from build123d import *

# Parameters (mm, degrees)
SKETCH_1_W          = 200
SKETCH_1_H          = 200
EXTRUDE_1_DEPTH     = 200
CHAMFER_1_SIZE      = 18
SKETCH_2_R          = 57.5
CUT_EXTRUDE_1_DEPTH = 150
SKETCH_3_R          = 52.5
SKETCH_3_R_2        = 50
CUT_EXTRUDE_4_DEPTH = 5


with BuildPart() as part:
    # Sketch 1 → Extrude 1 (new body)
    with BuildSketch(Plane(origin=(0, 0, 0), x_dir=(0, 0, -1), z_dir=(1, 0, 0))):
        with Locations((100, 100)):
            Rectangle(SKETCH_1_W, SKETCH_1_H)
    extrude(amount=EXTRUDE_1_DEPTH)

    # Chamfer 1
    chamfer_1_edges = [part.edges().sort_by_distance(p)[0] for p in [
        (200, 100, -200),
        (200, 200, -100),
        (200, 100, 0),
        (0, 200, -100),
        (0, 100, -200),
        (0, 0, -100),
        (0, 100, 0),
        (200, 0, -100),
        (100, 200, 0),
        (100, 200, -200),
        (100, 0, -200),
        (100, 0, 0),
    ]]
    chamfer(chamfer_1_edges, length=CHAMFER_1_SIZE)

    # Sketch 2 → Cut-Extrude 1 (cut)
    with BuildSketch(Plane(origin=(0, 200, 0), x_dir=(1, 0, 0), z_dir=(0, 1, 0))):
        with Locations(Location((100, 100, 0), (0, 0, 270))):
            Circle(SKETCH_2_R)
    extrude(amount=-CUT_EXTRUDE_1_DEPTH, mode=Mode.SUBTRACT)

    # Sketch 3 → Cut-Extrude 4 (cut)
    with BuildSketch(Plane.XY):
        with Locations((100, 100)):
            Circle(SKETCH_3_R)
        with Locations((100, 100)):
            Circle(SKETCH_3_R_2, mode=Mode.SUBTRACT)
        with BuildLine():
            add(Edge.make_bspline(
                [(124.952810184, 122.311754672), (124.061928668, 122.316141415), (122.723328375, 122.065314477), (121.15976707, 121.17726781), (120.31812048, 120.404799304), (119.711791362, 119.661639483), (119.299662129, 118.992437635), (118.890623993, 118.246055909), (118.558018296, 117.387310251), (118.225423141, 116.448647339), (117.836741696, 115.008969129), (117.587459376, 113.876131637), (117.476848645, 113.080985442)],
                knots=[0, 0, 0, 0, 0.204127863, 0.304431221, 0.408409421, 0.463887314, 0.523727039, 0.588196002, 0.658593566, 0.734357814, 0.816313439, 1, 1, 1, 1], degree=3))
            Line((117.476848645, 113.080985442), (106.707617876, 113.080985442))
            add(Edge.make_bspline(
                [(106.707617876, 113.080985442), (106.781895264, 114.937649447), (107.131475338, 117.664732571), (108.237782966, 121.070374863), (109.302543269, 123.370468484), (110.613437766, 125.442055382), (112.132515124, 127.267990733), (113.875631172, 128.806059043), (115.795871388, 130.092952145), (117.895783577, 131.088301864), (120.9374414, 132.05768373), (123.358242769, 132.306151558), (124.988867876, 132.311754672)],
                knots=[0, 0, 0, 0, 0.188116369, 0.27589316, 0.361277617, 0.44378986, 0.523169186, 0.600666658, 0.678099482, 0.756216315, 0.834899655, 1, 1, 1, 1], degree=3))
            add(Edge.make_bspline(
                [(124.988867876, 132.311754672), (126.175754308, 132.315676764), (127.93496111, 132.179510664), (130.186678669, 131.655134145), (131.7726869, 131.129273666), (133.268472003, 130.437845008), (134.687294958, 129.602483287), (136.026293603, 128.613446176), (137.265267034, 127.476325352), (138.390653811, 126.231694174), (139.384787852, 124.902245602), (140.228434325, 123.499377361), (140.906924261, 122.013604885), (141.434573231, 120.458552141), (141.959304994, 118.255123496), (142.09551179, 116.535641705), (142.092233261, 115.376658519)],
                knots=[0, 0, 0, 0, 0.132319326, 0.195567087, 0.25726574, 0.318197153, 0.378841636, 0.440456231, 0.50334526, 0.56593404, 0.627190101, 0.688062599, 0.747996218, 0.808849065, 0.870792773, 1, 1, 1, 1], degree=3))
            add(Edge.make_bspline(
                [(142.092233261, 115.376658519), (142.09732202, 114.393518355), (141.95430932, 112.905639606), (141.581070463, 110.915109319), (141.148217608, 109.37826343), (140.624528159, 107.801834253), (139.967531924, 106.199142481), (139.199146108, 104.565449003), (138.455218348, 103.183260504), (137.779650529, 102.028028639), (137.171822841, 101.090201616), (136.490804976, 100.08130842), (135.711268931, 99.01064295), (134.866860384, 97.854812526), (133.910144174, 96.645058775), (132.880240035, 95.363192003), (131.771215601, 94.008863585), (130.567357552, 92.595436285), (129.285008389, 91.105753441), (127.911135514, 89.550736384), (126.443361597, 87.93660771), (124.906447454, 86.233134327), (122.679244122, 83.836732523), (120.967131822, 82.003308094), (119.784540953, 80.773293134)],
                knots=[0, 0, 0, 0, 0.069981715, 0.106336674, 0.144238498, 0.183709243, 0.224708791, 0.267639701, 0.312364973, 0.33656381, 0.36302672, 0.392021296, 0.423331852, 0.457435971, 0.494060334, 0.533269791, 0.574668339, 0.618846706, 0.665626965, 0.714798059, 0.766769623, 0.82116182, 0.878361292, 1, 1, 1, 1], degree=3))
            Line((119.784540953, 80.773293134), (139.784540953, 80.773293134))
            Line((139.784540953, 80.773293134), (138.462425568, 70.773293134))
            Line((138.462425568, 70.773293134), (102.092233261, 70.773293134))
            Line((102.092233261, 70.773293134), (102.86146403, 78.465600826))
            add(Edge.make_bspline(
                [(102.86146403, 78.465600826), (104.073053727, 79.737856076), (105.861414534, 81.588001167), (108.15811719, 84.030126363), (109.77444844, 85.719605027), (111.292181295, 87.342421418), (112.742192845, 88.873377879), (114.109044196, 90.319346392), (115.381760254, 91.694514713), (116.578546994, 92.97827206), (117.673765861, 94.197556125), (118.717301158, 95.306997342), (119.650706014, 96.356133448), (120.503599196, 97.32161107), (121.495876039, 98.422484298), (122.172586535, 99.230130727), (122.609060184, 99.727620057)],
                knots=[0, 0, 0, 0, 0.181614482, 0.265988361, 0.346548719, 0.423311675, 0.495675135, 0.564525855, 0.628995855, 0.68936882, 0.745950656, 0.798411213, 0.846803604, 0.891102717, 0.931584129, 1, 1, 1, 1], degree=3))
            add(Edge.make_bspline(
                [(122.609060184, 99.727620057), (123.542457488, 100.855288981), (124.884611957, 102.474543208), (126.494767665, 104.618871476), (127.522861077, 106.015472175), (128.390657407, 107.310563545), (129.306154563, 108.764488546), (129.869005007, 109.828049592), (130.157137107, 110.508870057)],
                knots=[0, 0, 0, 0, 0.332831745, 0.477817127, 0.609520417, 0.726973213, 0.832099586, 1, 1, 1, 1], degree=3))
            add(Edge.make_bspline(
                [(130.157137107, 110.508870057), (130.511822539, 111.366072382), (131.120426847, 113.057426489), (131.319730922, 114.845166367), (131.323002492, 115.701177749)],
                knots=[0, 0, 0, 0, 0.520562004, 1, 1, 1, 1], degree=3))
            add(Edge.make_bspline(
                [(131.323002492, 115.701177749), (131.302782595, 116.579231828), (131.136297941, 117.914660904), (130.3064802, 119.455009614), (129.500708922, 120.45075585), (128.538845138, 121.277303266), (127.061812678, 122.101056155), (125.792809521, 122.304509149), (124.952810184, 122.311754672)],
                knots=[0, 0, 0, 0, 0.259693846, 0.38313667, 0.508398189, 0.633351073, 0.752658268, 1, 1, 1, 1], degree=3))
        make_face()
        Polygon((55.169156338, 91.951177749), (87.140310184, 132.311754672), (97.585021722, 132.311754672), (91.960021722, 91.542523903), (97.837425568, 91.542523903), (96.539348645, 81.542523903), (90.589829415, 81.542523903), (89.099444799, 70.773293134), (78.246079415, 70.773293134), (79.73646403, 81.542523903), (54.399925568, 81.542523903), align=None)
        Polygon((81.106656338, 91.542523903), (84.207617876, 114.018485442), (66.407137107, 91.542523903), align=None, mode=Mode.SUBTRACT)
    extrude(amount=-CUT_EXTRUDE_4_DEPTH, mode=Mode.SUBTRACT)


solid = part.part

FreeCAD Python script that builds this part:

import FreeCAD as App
import Part
import Sketcher

V = App.Vector
Q = App.Units.Quantity

doc = App.newDocument("Part")
body = doc.addObject("PartDesign::Body", "Body")

sketch1 = body.newObject("Sketcher::SketchObject", "Sketch")
sketch1.AttachmentSupport = (doc.getObject("YZ_Plane"), [""])
sketch1.MapMode = "FlatFace"
sketch1.addGeometry(Part.LineSegment(V(200, 0, 0), V(0, 0, 0)), False)
sketch1.addGeometry(Part.LineSegment(V(0, 0, 0), V(0, -200, 0)), False)
sketch1.addGeometry(Part.LineSegment(V(0, -200, 0), V(200, -200, 0)), False)
sketch1.addGeometry(Part.LineSegment(V(200, -200, 0), V(200, 0, 0)), False)
sketch1.addConstraint(Sketcher.Constraint("Coincident", 0, 2, 1, 1))
sketch1.addConstraint(Sketcher.Constraint("Coincident", 1, 2, 2, 1))
sketch1.addConstraint(Sketcher.Constraint("Coincident", 2, 2, 3, 1))
sketch1.addConstraint(Sketcher.Constraint("Coincident", 3, 2, 0, 1))
sketch1.addConstraint(Sketcher.Constraint("Horizontal", 0))
sketch1.addConstraint(Sketcher.Constraint("Vertical", 1))
sketch1.addConstraint(Sketcher.Constraint("Horizontal", 2))
sketch1.addConstraint(Sketcher.Constraint("Vertical", 3))
sketch1.addConstraint(Sketcher.Constraint("Coincident", 0, 2, -1, 1))
sketch1.addConstraint(Sketcher.Constraint("Equal", 2, 1))
sketch1.addConstraint(Sketcher.Constraint("DistanceX", 0, 2, 0, 1, Q("200 mm")))
pad1 = body.newObject("PartDesign::Pad", "Pad")
pad1.Profile = sketch1
pad1.Length = 200
doc.recompute()

chamfer = body.newObject("PartDesign::Chamfer", "Chamfer")
chamfer.Base = (pad1, ["Edge1"])
chamfer.UseAllEdges = True
chamfer.Size = 18

sketch2 = body.newObject("Sketcher::SketchObject", "Sketch001")
sketch2.AttachmentSupport = (doc.getObject("XZ_Plane"), [""])
sketch2.MapMode = "FlatFace"
sketch2.AttachmentOffset = App.Placement(V(0, 0, -200), App.Rotation())
sketch2.addGeometry(Part.Circle(V(100, -100, 0), V(0, 0, 1), 58), False)
sketch2.addConstraint(Sketcher.Constraint("Diameter", 0, Q("115 mm")))
sketch2.addConstraint(Sketcher.Constraint("DistanceX", -1, 1, 0, 3, Q("100 mm")))
sketch2.addConstraint(Sketcher.Constraint("DistanceY", 0, 3, -1, 1, Q("100 mm")))
pocket1 = body.newObject("PartDesign::Pocket", "Pocket")
pocket1.Profile = sketch2
pocket1.Length = 150
pocket1.Reversed = True

sketch3 = body.newObject("Sketcher::SketchObject", "Sketch002")
sketch3.AttachmentSupport = (doc.getObject("XY_Plane"), [""])
sketch3.MapMode = "FlatFace"
sketch3.addGeometry(Part.Circle(V(100, 100, 0), V(0, 0, 1), 52.5), False)
sketch3.addGeometry(Part.Circle(V(100, 100, 0), V(0, 0, 1), 50), False)
sketch3.addGeometry(Part.BSplineCurve([V(124.95281, 122.311755, 0), V(124.061929, 122.316141, 0), V(122.723328, 122.065314, 0), V(121.159767, 121.177268, 0), V(120.31812, 120.404799, 0), V(119.711791, 119.661639, 0), V(119.299662, 118.992438, 0), V(118.890624, 118.246056, 0), V(118.558018, 117.38731, 0), V(118.225423, 116.448647, 0), V(117.836742, 115.008969, 0), V(117.587459, 113.876132, 0), V(117.476849, 113.080985, 0)], [4, 1, 1, 1, 1, 1, 1, 1, 1, 1, 4], [0, 0.204127863, 0.304431221, 0.408409421, 0.463887314, 0.523727039, 0.588196002, 0.658593566, 0.734357814, 0.816313439, 1], False, 3, [1, 1, 1, 1, 1, 1, 1, 1, 1, 1, 1, 1, 1], False), False)
sketch3.addGeometry(Part.BSplineCurve([V(131.323002, 115.701178, 0), V(131.302783, 116.579232, 0), V(131.136298, 117.914661, 0), V(130.30648, 119.45501, 0), V(129.500709, 120.450756, 0), V(128.538845, 121.277303, 0), V(127.061813, 122.101056, 0), V(125.79281, 122.304509, 0), V(124.95281, 122.311755, 0)], [4, 1, 1, 1, 1, 1, 4], [0, 0.259693846, 0.38313667, 0.508398189, 0.633351073, 0.752658268, 1], False, 3, [1, 1, 1, 1, 1, 1, 1, 1, 1], False), False)
sketch3.addGeometry(Part.BSplineCurve([V(130.157137, 110.50887, 0), V(130.511823, 111.366072, 0), V(131.120427, 113.057426, 0), V(131.319731, 114.845166, 0), V(131.323002, 115.701178, 0)], [4, 1, 4], [0, 0.520562004, 1], False, 3, [1, 1, 1, 1, 1], False), False)
sketch3.addGeometry(Part.BSplineCurve([V(122.60906, 99.72762, 0), V(123.542457, 100.855289, 0), V(124.884612, 102.474543, 0), V(126.494768, 104.618871, 0), V(127.522861, 106.015472, 0), V(128.390657, 107.310564, 0), V(129.306155, 108.764489, 0), V(129.869005, 109.82805, 0), V(130.157137, 110.50887, 0)], [4, 1, 1, 1, 1, 1, 4], [0, 0.332831745, 0.477817127, 0.609520417, 0.726973213, 0.832099586, 1], False, 3, [1, 1, 1, 1, 1, 1, 1, 1, 1], False), False)
sketch3.addGeometry(Part.BSplineCurve([V(102.861464, 78.465601, 0), V(104.073054, 79.737856, 0), V(105.861415, 81.588001, 0), V(108.158117, 84.030126, 0), V(109.774448, 85.719605, 0), V(111.292181, 87.342421, 0), V(112.742193, 88.873378, 0), V(114.109044, 90.319346, 0), V(115.38176, 91.694515, 0), V(116.578547, 92.978272, 0), V(117.673766, 94.197556, 0), V(118.717301, 95.306997, 0), V(119.650706, 96.356133, 0), V(120.503599, 97.321611, 0), V(121.495876, 98.422484, 0), V(122.172587, 99.230131, 0), V(122.60906, 99.72762, 0)], [4, 1, 1, 1, 1, 1, 1, 1, 1, 1, 1, 1, 1, 1, 4], [0, 0.181614482, 0.265988361, 0.346548719, 0.423311675, 0.495675135, 0.564525855, 0.628995855, 0.68936882, 0.745950656, 0.798411213, 0.846803604, 0.891102717, 0.931584129, 1], False, 3, [1, 1, 1, 1, 1, 1, 1, 1, 1, 1, 1, 1, 1, 1, 1, 1, 1], False), False)
sketch3.addGeometry(Part.LineSegment(V(102.861464, 78.465601, 0), V(102.092233, 70.773293, 0)), False)
sketch3.addGeometry(Part.LineSegment(V(102.092233, 70.773293, 0), V(138.462426, 70.773293, 0)), False)
sketch3.addGeometry(Part.LineSegment(V(138.462426, 70.773293, 0), V(139.784541, 80.773293, 0)), False)
sketch3.addGeometry(Part.LineSegment(V(139.784541, 80.773293, 0), V(119.784541, 80.773293, 0)), False)
sketch3.addGeometry(Part.BSplineCurve([V(142.092233, 115.376659, 0), V(142.097322, 114.393518, 0), V(141.954309, 112.90564, 0), V(141.58107, 110.915109, 0), V(141.148218, 109.378263, 0), V(140.624528, 107.801834, 0), V(139.967532, 106.199142, 0), V(139.199146, 104.565449, 0), V(138.455218, 103.183261, 0), V(137.779651, 102.028029, 0), V(137.171823, 101.090202, 0), V(136.490805, 100.081308, 0), V(135.711269, 99.010643, 0), V(134.86686, 97.854813, 0), V(133.910144, 96.645059, 0), V(132.88024, 95.363192, 0), V(131.771216, 94.008864, 0), V(130.567358, 92.595436, 0), V(129.285008, 91.105753, 0), V(127.911136, 89.550736, 0), V(126.443362, 87.936608, 0), V(124.906447, 86.233134, 0), V(122.679244, 83.836733, 0), V(120.967132, 82.003308, 0), V(119.784541, 80.773293, 0)], [4, 1, 1, 1, 1, 1, 1, 1, 1, 1, 1, 1, 1, 1, 1, 1, 1, 1, 1, 1, 1, 1, 4], [0, 0.069981715, 0.106336674, 0.144238498, 0.183709243, 0.224708791, 0.267639701, 0.312364973, 0.33656381, 0.36302672, 0.392021296, 0.423331852, 0.457435971, 0.494060334, 0.533269791, 0.574668339, 0.618846706, 0.665626965, 0.714798059, 0.766769623, 0.82116182, 0.878361292, 1], False, 3, [1, 1, 1, 1, 1, 1, 1, 1, 1, 1, 1, 1, 1, 1, 1, 1, 1, 1, 1, 1, 1, 1, 1, 1, 1], False), False)
sketch3.addGeometry(Part.BSplineCurve([V(124.988868, 132.311755, 0), V(126.175754, 132.315677, 0), V(127.934961, 132.179511, 0), V(130.186679, 131.655134, 0), V(131.772687, 131.129274, 0), V(133.268472, 130.437845, 0), V(134.687295, 129.602483, 0), V(136.026294, 128.613446, 0), V(137.265267, 127.476325, 0), V(138.390654, 126.231694, 0), V(139.384788, 124.902246, 0), V(140.228434, 123.499377, 0), V(140.906924, 122.013605, 0), V(141.434573, 120.458552, 0), V(141.959305, 118.255123, 0), V(142.095512, 116.535642, 0), V(142.092233, 115.376659, 0)], [4, 1, 1, 1, 1, 1, 1, 1, 1, 1, 1, 1, 1, 1, 4], [0, 0.132319326, 0.195567087, 0.25726574, 0.318197153, 0.378841636, 0.440456231, 0.50334526, 0.56593404, 0.627190101, 0.688062599, 0.747996218, 0.808849065, 0.870792773, 1], False, 3, [1, 1, 1, 1, 1, 1, 1, 1, 1, 1, 1, 1, 1, 1, 1, 1, 1], False), False)
sketch3.addGeometry(Part.BSplineCurve([V(106.707618, 113.080985, 0), V(106.781895, 114.937649, 0), V(107.131475, 117.664733, 0), V(108.237783, 121.070375, 0), V(109.302543, 123.370468, 0), V(110.613438, 125.442055, 0), V(112.132515, 127.267991, 0), V(113.875631, 128.806059, 0), V(115.795871, 130.092952, 0), V(117.895784, 131.088302, 0), V(120.937441, 132.057684, 0), V(123.358243, 132.306152, 0), V(124.988868, 132.311755, 0)], [4, 1, 1, 1, 1, 1, 1, 1, 1, 1, 4], [0, 0.188116369, 0.27589316, 0.361277617, 0.44378986, 0.523169186, 0.600666658, 0.678099482, 0.756216315, 0.834899655, 1], False, 3, [1, 1, 1, 1, 1, 1, 1, 1, 1, 1, 1, 1, 1], False), False)
sketch3.addGeometry(Part.LineSegment(V(106.707618, 113.080985, 0), V(117.476849, 113.080985, 0)), False)
sketch3.addGeometry(Part.LineSegment(V(87.14031, 132.311755, 0), V(55.169156, 91.951178, 0)), False)
sketch3.addGeometry(Part.LineSegment(V(55.169156, 91.951178, 0), V(54.399926, 81.542524, 0)), False)
sketch3.addGeometry(Part.LineSegment(V(54.399926, 81.542524, 0), V(79.736464, 81.542524, 0)), False)
sketch3.addGeometry(Part.LineSegment(V(79.736464, 81.542524, 0), V(78.246079, 70.773293, 0)), False)
sketch3.addGeometry(Part.LineSegment(V(78.246079, 70.773293, 0), V(89.099445, 70.773293, 0)), False)
sketch3.addGeometry(Part.LineSegment(V(89.099445, 70.773293, 0), V(90.589829, 81.542524, 0)), False)
sketch3.addGeometry(Part.LineSegment(V(90.589829, 81.542524, 0), V(96.539349, 81.542524, 0)), False)
sketch3.addGeometry(Part.LineSegment(V(96.539349, 81.542524, 0), V(97.837426, 91.542524, 0)), False)
sketch3.addGeometry(Part.LineSegment(V(97.837426, 91.542524, 0), V(91.960022, 91.542524, 0)), False)
sketch3.addGeometry(Part.LineSegment(V(91.960022, 91.542524, 0), V(97.585022, 132.311755, 0)), False)
sketch3.addGeometry(Part.LineSegment(V(97.585022, 132.311755, 0), V(87.14031, 132.311755, 0)), False)
sketch3.addGeometry(Part.LineSegment(V(81.106656, 91.542524, 0), V(66.407137, 91.542524, 0)), False)
sketch3.addGeometry(Part.LineSegment(V(66.407137, 91.542524, 0), V(84.207618, 114.018485, 0)), False)
sketch3.addGeometry(Part.LineSegment(V(84.207618, 114.018485, 0), V(81.106656, 91.542524, 0)), False)
sketch3.addConstraint(Sketcher.Constraint("Block", 2))
sketch3.addConstraint(Sketcher.Constraint("Block", 3))
sketch3.addConstraint(Sketcher.Constraint("Block", 4))
sketch3.addConstraint(Sketcher.Constraint("Block", 5))
sketch3.addConstraint(Sketcher.Constraint("Block", 6))
sketch3.addConstraint(Sketcher.Constraint("Block", 11))
sketch3.addConstraint(Sketcher.Constraint("Block", 12))
sketch3.addConstraint(Sketcher.Constraint("Block", 13))
sketch3.addConstraint(Sketcher.Constraint("Coincident", 6, 1, 7, 1))
sketch3.addConstraint(Sketcher.Constraint("Coincident", 7, 2, 8, 1))
sketch3.addConstraint(Sketcher.Constraint("Coincident", 8, 2, 9, 1))
sketch3.addConstraint(Sketcher.Constraint("Coincident", 9, 2, 10, 1))
sketch3.addConstraint(Sketcher.Constraint("Coincident", 10, 2, 11, 2))
sketch3.addConstraint(Sketcher.Constraint("Coincident", 13, 1, 14, 1))
sketch3.addConstraint(Sketcher.Constraint("Coincident", 14, 2, 2, 2))
sketch3.addConstraint(Sketcher.Constraint("Coincident", 15, 2, 16, 1))
sketch3.addConstraint(Sketcher.Constraint("Coincident", 16, 2, 17, 1))
sketch3.addConstraint(Sketcher.Constraint("Coincident", 17, 2, 18, 1))
sketch3.addConstraint(Sketcher.Constraint("Coincident", 18, 2, 19, 1))
sketch3.addConstraint(Sketcher.Constraint("Coincident", 19, 2, 20, 1))
sketch3.addConstraint(Sketcher.Constraint("Coincident", 20, 2, 21, 1))
sketch3.addConstraint(Sketcher.Constraint("Coincident", 21, 2, 22, 1))
sketch3.addConstraint(Sketcher.Constraint("Coincident", 22, 2, 23, 1))
sketch3.addConstraint(Sketcher.Constraint("Coincident", 23, 2, 24, 1))
sketch3.addConstraint(Sketcher.Constraint("Coincident", 24, 2, 25, 1))
sketch3.addConstraint(Sketcher.Constraint("Coincident", 25, 2, 15, 1))
sketch3.addConstraint(Sketcher.Constraint("Coincident", 26, 2, 27, 1))
sketch3.addConstraint(Sketcher.Constraint("Coincident", 27, 2, 28, 1))
sketch3.addConstraint(Sketcher.Constraint("Coincident", 28, 2, 26, 1))
sketch3.addConstraint(Sketcher.Constraint("Horizontal", 8))
sketch3.addConstraint(Sketcher.Constraint("Horizontal", 10))
sketch3.addConstraint(Sketcher.Constraint("Horizontal", 17))
sketch3.addConstraint(Sketcher.Constraint("Horizontal", 19))
sketch3.addConstraint(Sketcher.Constraint("Horizontal", 21))
sketch3.addConstraint(Sketcher.Constraint("Horizontal", 23))
sketch3.addConstraint(Sketcher.Constraint("Horizontal", 25))
sketch3.addConstraint(Sketcher.Constraint("Horizontal", 26))
sketch3.addConstraint(Sketcher.Constraint("Coincident", 1, 3, 0, 3))
sketch3.addConstraint(Sketcher.Constraint("Parallel", 18, 20))
sketch3.addConstraint(Sketcher.Constraint("Horizontal", 8, 2, 18, 2))
sketch3.addConstraint(Sketcher.Constraint("Horizontal", 17, 2, 20, 2))
sketch3.addConstraint(Sketcher.Constraint("Horizontal", 23, 2, 26, 2))
sketch3.addConstraint(Sketcher.Constraint("Diameter", 0, Q("105 mm")))
sketch3.addConstraint(Sketcher.Constraint("Diameter", 1, Q("100 mm")))
sketch3.addConstraint(Sketcher.Constraint("DistanceX", 10, 2, 10, 1, Q("20 mm")))
sketch3.addConstraint(Sketcher.Constraint("DistanceX", -1, 1, 0, 3, Q("100 mm")))
sketch3.addConstraint(Sketcher.Constraint("DistanceY", -1, 1, 0, 3, Q("100 mm")))
sketch3.addConstraint(Sketcher.Constraint("DistanceY", 8, 2, 9, 2, Q("10 mm")))
sketch3.addConstraint(Sketcher.Constraint("DistanceY", 21, 2, 22, 2, Q("10 mm")))
sketch3.addConstraint(Sketcher.Constraint("DistanceX", 23, 2, 24, 2, Q("5.625 mm")))
sketch3.addConstraint(Sketcher.Constraint("Distance", 22, Q("10.083898 mm")))
sketch3.addConstraint(Sketcher.Constraint("DistanceX", 17, 1, 17, 2, Q("25.336538 mm")))
sketch3.addConstraint(Sketcher.Constraint("DistanceX", 21, 1, 21, 2, Q("5.949519 mm")))
sketch3.addConstraint(Sketcher.Constraint("DistanceX", 25, 2, 25, 1, Q("10.444712 mm")))
sketch3.addConstraint(Sketcher.Constraint("DistanceX", 26, 2, 26, 1, Q("14.699519 mm")))
sketch3.addConstraint(Sketcher.Constraint("Distance", 9, Q("10.087021 mm")))
sketch3.addConstraint(Sketcher.Constraint("Distance", 16, Q("10.437039 mm")))
sketch3.addConstraint(Sketcher.Constraint("Distance", 18, Q("10.871871 mm")))
sketch3.addConstraint(Sketcher.Constraint("Distance", 28, Q("22.68887 mm")))
sketch3.addConstraint(Sketcher.Constraint("DistanceX", 8, 1, 8, 2, Q("36.370192 mm")))
sketch3.addConstraint(Sketcher.Constraint("DistanceX", 19, 1, 19, 2, Q("10.853365 mm")))
sketch3.addConstraint(Sketcher.Constraint("DistanceX", 23, 2, 23, 1, Q("5.877404 mm")))
sketch3.addConstraint(Sketcher.Constraint("DistanceX", -1, 1, 18, 2, Q("78.246079 mm")))
sketch3.addConstraint(Sketcher.Constraint("DistanceX", -1, 1, 20, 2, Q("90.589829 mm")))
sketch3.addConstraint(Sketcher.Constraint("DistanceX", 16, 2, 15, 2, Q("0.769231 mm")))
sketch3.addConstraint(Sketcher.Constraint("DistanceY", 14, 2, 24, 2, Q("19.230769 mm")))
sketch3.addConstraint(Sketcher.Constraint("DistanceX", 15, 2, 26, 2, Q("11.237981 mm")))
sketch3.addConstraint(Sketcher.Constraint("DistanceY", 27, 2, 25, 2, Q("18.293269 mm")))
pocket2 = body.newObject("PartDesign::Pocket", "Pocket001")
pocket2.Profile = sketch3
pocket2.Length = 5

doc.recompute()
